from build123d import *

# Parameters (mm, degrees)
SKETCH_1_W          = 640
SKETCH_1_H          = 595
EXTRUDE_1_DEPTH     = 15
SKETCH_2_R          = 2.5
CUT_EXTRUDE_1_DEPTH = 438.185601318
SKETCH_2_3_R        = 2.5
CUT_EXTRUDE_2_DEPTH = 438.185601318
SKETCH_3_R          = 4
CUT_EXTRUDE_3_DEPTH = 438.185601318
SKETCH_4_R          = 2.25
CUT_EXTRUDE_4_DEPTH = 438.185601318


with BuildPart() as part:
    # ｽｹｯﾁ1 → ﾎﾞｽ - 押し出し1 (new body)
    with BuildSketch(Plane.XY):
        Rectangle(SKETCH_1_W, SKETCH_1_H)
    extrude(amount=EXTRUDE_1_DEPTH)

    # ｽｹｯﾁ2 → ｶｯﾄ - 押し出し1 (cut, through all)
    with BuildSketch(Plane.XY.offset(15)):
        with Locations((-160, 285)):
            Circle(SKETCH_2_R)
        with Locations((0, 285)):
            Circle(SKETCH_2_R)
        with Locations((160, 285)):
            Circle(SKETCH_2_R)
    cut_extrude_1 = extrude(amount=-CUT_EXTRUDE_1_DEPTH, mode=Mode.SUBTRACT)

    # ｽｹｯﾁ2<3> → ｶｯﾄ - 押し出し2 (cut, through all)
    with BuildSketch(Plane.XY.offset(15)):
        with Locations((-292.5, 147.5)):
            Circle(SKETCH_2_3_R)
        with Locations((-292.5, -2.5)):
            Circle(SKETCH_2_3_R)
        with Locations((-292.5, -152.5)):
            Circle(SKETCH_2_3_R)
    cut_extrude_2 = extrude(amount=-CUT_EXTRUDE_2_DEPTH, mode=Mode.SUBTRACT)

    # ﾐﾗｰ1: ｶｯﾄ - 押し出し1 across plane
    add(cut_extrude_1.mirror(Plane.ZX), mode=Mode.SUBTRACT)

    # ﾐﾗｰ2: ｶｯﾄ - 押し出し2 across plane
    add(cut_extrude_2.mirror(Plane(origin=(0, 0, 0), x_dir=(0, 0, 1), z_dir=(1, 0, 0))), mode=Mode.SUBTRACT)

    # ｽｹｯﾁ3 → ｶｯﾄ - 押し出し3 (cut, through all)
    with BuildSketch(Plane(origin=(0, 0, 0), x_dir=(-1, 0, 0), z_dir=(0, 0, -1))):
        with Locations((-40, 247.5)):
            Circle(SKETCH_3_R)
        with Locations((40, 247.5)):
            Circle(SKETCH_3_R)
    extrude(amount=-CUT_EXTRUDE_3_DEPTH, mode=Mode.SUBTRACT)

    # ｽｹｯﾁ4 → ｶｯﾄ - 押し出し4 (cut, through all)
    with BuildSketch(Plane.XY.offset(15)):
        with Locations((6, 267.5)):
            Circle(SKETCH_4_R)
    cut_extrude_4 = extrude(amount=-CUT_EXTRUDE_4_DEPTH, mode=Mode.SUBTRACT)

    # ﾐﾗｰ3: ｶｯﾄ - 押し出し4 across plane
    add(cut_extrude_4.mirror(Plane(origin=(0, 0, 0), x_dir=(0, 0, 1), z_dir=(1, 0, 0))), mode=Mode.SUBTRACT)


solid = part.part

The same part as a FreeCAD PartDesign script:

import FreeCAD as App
import Part
import Sketcher

V = App.Vector


def add_polygon(sketch, points):
    """Adds a closed chain of lines whose ends are joined by coincident constraints."""
    first, n = sketch.GeometryCount, len(points)
    for a, b in zip(points, points[1:] + points[:1]):
        sketch.addGeometry(Part.LineSegment(App.Vector(*a, 0), App.Vector(*b, 0)), False)
    for i in range(n):
        sketch.addConstraint(Sketcher.Constraint("Coincident", first + i, 2, first + (i + 1) % n, 1))

doc = App.newDocument("Part")
params = doc.addObject("Spreadsheet::Sheet", "Params")
for row, (alias, value) in enumerate([
    ("sketch1_width", "640 mm"),
    ("sketch1_height", "595 mm"),
    ("pad1_length", "15 mm"),
    ("sketch2_diameter", "5 mm"),
    ("sketch3_diameter", "5 mm"),
    ("sketch4_diameter", "8 mm"),
    ("sketch5_diameter", "4.5 mm"),
], start=1):
    params.set(f"A{row}", alias)
    params.set(f"B{row}", "=" + value)
    params.setAlias(f"B{row}", alias)

body = doc.addObject("PartDesign::Body", "Body")

sketch1 = body.newObject("Sketcher::SketchObject", "Sketch")
sketch1.AttachmentSupport = (doc.getObject("XY_Plane"), [""])
sketch1.MapMode = "FlatFace"
add_polygon(sketch1, [(-320, 298), (-320, -298), (320, -298), (320, 298)])
sketch1.addConstraint([
    Sketcher.Constraint("Vertical", 0),
    Sketcher.Constraint("Horizontal", 1),
    Sketcher.Constraint("Vertical", 2),
    Sketcher.Constraint("Horizontal", 3),
    Sketcher.Constraint("Symmetric", 0, 2, 2, 2, -1, 1),
    Sketcher.Constraint("DistanceX", 1, 1, 1, 2, 640.0),
    Sketcher.Constraint("DistanceY", 0, 2, 0, 1, 595.0),
])
sketch1.setExpression("Constraints[9]", "Params.sketch1_width")
sketch1.setExpression("Constraints[10]", "Params.sketch1_height")
pad1 = body.newObject("PartDesign::Pad", "Pad")
pad1.Profile = sketch1
pad1.setExpression("Length", "Params.pad1_length")

sketch2 = body.newObject("Sketcher::SketchObject", "Sketch001")
sketch2.AttachmentSupport = (doc.getObject("XY_Plane"), [""])
sketch2.MapMode = "FlatFace"
sketch2.AttachmentOffset = App.Placement(V(0, 0, 15), App.Rotation())
sketch2.addGeometry([
    Part.Circle(V(-160, 285, 0), V(0, 0, 1), 2.5),
    Part.Circle(V(0, 285, 0), V(0, 0, 1), 2.5),
    Part.Circle(V(160, 285, 0), V(0, 0, 1), 2.5),
], False)
sketch2.addConstraint([
    Sketcher.Constraint("Equal", 0, 1),
    Sketcher.Constraint("Equal", 1, 2),
    Sketcher.Constraint("Symmetric", 0, 3, 2, 3, -2),
    Sketcher.Constraint("PointOnObject", 1, 3, -2),
    Sketcher.Constraint("Horizontal", 0, 3, 1, 3),
    Sketcher.Constraint("Diameter", 0, 5.0),
    Sketcher.Constraint("DistanceX", 0, 3, -1, 1, 160.0),
    Sketcher.Constraint("DistanceY", -1, 1, 0, 3, 285.0),
])
sketch2.setExpression("Constraints[5]", "Params.sketch2_diameter")
pocket1 = body.newObject("PartDesign::Pocket", "Pocket")
pocket1.Profile = sketch2
pocket1.Type = "ThroughAll"

sketch3 = body.newObject("Sketcher::SketchObject", "Sketch002")
sketch3.AttachmentSupport = (doc.getObject("XY_Plane"), [""])
sketch3.MapMode = "FlatFace"
sketch3.AttachmentOffset = App.Placement(V(0, 0, 15), App.Rotation())
sketch3.addGeometry([
    Part.Circle(V(-292.5, 147.5, 0), V(0, 0, 1), 2.5),
    Part.Circle(V(-292.5, -2.5, 0), V(0, 0, 1), 2.5),
    Part.Circle(V(-292.5, -152.5, 0), V(0, 0, 1), 2.5),
], False)
sketch3.addConstraint([
    Sketcher.Constraint("Equal", 0, 1),
    Sketcher.Constraint("Equal", 1, 2),
    Sketcher.Constraint("Vertical", 0, 3, 1, 3),
    Sketcher.Constraint("Vertical", 1, 3, 2, 3),
    Sketcher.Constraint("Diameter", 0, 5.0),
    Sketcher.Constraint("DistanceY", 1, 3, 0, 3, 150.0),
    Sketcher.Constraint("DistanceY", 2, 3, 1, 3, 150.0),
    Sketcher.Constraint("DistanceX", 0, 3, -1, 1, 292.5),
    Sketcher.Constraint("DistanceY", -1, 1, 0, 3, 147.5),
])
sketch3.setExpression("Constraints[4]", "Params.sketch3_diameter")
pocket2 = body.newObject("PartDesign::Pocket", "Pocket001")
pocket2.Profile = sketch3
pocket2.Type = "ThroughAll"
doc.recompute()

mirrored = body.newObject("PartDesign::Mirrored", "Mirrored")
mirrored.Originals = [pocket1]
mirrored.MirrorPlane = (doc.getObject("XZ_Plane"), [""])
body.Tip = mirrored
doc.recompute()

mirrored2 = body.newObject("PartDesign::Mirrored", "Mirrored001")
mirrored2.Originals = [pocket2]
mirrored2.MirrorPlane = (doc.getObject("YZ_Plane"), [""])
body.Tip = mirrored2

sketch4 = body.newObject("Sketcher::SketchObject", "Sketch003")
sketch4.AttachmentSupport = (doc.getObject("XY_Plane"), [""])
sketch4.MapMode = "FlatFace"
sketch4.addGeometry([
    Part.Circle(V(40, 247.5, 0), V(0, 0, 1), 4),
    Part.Circle(V(-40, 247.5, 0), V(0, 0, 1), 4),
], False)
sketch4.addConstraint([
    Sketcher.Constraint("Equal", 0, 1),
    Sketcher.Constraint("Symmetric", 0, 3, 1, 3, -2),
    Sketcher.Constraint("Diameter", 0, 8.0),
    Sketcher.Constraint("DistanceX", -1, 1, 0, 3, 40.0),
    Sketcher.Constraint("DistanceY", -1, 1, 0, 3, 247.5),
])
sketch4.setExpression("Constraints[2]", "Params.sketch4_diameter")
pocket3 = body.newObject("PartDesign::Pocket", "Pocket002")
pocket3.Profile = sketch4
pocket3.Type = "ThroughAll"
pocket3.Reversed = True

sketch5 = body.newObject("Sketcher::SketchObject", "Sketch004")
sketch5.AttachmentSupport = (doc.getObject("XY_Plane"), [""])
sketch5.MapMode = "FlatFace"
sketch5.AttachmentOffset = App.Placement(V(0, 0, 15), App.Rotation())
sketch5.addGeometry(Part.Circle(V(6, 267.5, 0), V(0, 0, 1), 2.2), False)
sketch5.addConstraint([
    Sketcher.Constraint("Diameter", 0, 4.5),
    Sketcher.Constraint("DistanceX", -1, 1, 0, 3, 6.0),
    Sketcher.Constraint("DistanceY", -1, 1, 0, 3, 267.5),
])
sketch5.setExpression("Constraints[0]", "Params.sketch5_diameter")
pocket4 = body.newObject("PartDesign::Pocket", "Pocket003")
pocket4.Profile = sketch5
pocket4.Type = "ThroughAll"
doc.recompute()

mirrored3 = body.newObject("PartDesign::Mirrored", "Mirrored002")
mirrored3.Originals = [pocket4]
mirrored3.MirrorPlane = (doc.getObject("YZ_Plane"), [""])
body.Tip = mirrored3

doc.recompute()
